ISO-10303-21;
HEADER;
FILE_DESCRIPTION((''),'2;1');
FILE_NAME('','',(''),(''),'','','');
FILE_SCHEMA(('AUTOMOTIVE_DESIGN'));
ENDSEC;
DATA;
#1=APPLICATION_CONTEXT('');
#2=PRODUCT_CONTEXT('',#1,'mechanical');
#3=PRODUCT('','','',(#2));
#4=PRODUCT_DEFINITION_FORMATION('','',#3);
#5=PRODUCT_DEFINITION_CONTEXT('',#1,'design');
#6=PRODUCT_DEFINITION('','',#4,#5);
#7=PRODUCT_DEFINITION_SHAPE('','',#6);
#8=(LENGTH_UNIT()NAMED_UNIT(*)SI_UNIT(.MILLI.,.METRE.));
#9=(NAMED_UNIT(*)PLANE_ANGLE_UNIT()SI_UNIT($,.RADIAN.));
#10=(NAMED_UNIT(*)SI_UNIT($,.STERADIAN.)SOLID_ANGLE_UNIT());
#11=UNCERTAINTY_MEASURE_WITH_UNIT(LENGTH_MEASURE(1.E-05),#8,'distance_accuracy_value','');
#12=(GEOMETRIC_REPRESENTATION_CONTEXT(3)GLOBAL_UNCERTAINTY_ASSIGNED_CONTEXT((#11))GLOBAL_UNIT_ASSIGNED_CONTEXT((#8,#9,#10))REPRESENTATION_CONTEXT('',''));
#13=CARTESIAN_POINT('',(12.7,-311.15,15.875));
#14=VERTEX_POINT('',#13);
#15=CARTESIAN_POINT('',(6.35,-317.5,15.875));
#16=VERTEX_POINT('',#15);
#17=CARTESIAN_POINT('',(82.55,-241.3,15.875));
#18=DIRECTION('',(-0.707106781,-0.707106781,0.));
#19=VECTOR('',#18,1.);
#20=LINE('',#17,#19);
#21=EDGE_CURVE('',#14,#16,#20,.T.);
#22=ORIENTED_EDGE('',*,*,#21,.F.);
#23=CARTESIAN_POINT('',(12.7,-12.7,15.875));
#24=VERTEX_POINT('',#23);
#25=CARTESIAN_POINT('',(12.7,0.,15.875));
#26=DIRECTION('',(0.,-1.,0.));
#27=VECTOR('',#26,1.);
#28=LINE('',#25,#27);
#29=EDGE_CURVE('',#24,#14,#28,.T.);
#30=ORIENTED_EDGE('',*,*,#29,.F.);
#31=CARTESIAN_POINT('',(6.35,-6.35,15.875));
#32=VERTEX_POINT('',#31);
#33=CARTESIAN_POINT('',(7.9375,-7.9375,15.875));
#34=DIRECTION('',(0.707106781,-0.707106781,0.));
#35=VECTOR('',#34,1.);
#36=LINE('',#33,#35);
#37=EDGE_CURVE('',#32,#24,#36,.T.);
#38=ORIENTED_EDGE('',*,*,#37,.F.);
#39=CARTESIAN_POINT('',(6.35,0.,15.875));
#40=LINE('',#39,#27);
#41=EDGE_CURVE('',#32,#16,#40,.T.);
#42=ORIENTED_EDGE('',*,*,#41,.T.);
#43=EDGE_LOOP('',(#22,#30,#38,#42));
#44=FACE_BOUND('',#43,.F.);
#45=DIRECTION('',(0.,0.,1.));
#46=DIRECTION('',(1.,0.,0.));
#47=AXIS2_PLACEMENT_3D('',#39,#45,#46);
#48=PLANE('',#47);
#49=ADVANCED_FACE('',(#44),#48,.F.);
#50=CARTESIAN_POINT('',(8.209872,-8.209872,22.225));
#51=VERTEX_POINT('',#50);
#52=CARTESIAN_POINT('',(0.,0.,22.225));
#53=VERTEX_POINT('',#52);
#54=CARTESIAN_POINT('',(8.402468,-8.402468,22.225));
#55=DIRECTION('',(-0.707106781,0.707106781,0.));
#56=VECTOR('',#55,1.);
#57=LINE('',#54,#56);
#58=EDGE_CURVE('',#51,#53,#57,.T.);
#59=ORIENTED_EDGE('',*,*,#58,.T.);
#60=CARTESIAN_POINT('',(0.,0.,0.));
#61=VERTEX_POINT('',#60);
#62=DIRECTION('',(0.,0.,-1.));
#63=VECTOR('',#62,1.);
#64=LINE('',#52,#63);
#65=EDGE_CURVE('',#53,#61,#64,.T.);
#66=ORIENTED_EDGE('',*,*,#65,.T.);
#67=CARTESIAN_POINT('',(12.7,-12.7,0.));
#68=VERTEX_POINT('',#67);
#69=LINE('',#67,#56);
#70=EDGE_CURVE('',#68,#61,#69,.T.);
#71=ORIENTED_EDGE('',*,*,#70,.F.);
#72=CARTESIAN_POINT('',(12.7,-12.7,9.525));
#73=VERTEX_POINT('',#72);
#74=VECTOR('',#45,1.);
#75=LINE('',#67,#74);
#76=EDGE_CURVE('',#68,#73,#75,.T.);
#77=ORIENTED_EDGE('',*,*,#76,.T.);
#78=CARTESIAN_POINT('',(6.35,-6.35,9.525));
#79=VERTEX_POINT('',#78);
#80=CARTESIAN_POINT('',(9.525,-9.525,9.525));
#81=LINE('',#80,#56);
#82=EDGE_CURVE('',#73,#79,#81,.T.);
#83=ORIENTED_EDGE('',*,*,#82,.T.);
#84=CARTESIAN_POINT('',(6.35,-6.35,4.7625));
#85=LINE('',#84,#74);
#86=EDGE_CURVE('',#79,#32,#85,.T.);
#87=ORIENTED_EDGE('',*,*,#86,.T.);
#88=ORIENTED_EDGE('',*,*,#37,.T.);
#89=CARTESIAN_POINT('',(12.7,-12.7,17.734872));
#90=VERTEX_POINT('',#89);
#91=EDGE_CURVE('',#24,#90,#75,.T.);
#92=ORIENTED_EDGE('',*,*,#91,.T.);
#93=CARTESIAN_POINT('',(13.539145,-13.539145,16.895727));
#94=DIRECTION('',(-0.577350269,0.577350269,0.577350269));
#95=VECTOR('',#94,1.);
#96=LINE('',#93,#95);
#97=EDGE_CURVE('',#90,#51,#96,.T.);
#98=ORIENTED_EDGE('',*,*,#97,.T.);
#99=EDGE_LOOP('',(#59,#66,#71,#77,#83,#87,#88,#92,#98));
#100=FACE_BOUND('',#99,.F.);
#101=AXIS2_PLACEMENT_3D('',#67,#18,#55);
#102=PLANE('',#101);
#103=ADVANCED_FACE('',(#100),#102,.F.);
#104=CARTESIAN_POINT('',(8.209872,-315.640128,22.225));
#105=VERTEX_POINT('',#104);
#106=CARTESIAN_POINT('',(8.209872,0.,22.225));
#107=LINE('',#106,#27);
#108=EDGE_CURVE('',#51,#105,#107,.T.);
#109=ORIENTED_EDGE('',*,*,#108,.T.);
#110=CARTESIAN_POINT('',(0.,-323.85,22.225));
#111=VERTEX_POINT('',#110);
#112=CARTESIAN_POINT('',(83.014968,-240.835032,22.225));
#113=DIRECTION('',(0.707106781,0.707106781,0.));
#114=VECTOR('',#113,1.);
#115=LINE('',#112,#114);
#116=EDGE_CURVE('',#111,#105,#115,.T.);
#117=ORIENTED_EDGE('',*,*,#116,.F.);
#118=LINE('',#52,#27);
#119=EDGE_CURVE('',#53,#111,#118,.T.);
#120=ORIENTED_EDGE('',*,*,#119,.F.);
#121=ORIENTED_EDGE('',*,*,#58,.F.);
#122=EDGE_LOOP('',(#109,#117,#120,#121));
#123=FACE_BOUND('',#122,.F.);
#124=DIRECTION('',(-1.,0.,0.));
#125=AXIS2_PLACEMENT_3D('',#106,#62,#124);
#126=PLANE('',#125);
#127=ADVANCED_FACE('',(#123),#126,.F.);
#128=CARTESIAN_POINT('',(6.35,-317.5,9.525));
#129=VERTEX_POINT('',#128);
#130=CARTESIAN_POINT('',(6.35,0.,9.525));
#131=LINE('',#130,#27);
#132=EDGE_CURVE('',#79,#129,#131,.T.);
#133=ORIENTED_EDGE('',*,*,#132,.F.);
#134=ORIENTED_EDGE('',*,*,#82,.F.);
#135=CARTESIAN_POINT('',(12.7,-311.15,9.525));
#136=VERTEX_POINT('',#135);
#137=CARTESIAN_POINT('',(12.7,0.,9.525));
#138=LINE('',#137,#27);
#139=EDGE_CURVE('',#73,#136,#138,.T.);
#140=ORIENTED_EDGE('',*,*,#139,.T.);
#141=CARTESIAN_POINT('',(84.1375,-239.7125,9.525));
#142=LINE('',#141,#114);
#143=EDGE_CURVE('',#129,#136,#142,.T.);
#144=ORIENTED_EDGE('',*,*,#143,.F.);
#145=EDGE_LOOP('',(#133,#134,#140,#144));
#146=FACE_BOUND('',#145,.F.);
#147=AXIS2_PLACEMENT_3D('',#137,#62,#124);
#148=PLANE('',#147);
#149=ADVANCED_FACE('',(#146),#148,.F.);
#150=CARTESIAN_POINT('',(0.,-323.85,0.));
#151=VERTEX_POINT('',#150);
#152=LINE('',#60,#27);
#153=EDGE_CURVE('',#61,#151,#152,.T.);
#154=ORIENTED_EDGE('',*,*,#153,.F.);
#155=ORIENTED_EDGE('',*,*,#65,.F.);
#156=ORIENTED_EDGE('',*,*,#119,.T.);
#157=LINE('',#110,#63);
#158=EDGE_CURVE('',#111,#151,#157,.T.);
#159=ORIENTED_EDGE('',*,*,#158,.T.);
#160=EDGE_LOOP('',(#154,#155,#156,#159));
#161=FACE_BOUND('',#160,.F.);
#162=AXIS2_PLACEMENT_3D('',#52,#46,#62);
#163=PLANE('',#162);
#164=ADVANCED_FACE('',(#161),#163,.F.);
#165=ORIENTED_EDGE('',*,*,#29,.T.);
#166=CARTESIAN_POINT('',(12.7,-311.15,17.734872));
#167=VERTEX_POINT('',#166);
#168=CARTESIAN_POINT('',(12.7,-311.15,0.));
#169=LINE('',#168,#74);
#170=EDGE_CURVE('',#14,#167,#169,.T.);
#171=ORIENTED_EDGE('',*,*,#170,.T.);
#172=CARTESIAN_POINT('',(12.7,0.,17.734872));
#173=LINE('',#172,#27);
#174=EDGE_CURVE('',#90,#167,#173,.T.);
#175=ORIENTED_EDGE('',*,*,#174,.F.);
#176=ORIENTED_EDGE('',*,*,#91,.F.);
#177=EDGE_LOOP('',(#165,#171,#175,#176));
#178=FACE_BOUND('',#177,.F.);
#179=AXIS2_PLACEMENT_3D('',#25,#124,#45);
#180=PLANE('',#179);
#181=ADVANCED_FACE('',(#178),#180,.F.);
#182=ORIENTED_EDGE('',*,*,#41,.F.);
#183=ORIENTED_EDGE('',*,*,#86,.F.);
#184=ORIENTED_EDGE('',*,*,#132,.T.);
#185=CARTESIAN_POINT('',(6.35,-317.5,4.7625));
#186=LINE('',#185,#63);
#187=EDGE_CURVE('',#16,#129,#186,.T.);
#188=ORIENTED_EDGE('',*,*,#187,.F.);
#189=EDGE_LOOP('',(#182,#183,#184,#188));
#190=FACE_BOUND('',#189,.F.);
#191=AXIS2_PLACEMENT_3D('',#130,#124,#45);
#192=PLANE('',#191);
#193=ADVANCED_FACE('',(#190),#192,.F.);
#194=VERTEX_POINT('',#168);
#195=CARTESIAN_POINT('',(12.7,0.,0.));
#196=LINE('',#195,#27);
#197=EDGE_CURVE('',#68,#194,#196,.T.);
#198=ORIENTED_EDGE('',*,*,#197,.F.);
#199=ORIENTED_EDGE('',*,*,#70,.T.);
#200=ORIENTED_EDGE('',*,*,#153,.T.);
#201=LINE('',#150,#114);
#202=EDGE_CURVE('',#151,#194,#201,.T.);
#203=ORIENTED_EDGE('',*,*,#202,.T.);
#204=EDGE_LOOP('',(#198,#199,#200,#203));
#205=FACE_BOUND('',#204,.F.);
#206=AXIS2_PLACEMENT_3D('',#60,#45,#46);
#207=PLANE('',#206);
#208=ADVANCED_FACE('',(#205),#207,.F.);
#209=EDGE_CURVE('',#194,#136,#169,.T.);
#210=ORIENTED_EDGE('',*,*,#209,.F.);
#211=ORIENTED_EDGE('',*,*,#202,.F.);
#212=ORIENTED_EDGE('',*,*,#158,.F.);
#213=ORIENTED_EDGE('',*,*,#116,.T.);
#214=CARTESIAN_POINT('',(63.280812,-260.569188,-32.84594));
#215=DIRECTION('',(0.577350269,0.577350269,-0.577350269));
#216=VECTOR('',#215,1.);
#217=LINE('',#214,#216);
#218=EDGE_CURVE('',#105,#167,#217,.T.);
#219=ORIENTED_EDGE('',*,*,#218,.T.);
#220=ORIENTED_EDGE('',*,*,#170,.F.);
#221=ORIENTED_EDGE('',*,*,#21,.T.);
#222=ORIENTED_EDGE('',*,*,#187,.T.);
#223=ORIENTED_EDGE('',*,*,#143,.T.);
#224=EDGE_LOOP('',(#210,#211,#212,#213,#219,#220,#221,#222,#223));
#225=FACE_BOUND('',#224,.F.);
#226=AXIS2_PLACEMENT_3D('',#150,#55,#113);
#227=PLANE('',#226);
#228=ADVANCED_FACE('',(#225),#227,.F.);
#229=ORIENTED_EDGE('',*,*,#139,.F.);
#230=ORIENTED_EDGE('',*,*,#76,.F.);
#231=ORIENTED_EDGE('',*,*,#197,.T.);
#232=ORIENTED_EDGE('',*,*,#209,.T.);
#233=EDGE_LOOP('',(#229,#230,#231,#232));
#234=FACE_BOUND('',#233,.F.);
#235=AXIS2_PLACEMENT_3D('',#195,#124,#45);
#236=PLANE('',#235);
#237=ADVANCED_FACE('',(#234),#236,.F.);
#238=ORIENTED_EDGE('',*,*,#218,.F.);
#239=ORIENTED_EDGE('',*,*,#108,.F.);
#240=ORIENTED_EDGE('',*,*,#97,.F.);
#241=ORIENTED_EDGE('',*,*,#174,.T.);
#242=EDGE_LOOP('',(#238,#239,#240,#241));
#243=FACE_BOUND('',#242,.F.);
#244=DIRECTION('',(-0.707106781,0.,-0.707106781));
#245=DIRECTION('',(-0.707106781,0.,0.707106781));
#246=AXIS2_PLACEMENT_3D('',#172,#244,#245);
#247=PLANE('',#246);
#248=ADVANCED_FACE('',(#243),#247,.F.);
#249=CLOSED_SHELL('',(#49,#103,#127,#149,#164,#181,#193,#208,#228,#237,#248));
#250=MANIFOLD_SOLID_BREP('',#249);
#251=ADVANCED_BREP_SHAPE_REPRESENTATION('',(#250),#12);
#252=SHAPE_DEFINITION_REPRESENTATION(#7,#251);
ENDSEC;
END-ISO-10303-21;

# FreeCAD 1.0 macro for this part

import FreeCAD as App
import Part
import Sketcher
Q = App.Units.Quantity

doc = App.newDocument("Part")
body = doc.addObject("PartDesign::Body", "Body")

sketch1 = doc.addObject("Sketcher::SketchObject", "Sketch")
body.addObject(sketch1)
sketch1.AttachmentSupport = (doc.XZ_Plane, [""])
sketch1.MapMode = "FlatFace"
sketch1.addGeometry([
    Part.LineSegment(App.Vector(0, 22.2, 0), App.Vector(0, 0, 0)),
    Part.LineSegment(App.Vector(0, 0, 0), App.Vector(12.7, 0, 0)),
    Part.LineSegment(App.Vector(12.7, 0, 0), App.Vector(12.7, 9.5, 0)),
    Part.LineSegment(App.Vector(12.7, 9.5, 0), App.Vector(6.3, 9.5, 0)),
    Part.LineSegment(App.Vector(6.3, 9.5, 0), App.Vector(6.3, 15.9, 0)),
    Part.LineSegment(App.Vector(6.3, 15.9, 0), App.Vector(12.7, 15.9, 0)),
    Part.LineSegment(App.Vector(12.7, 15.9, 0), App.Vector(12.7, 17.7, 0)),
    Part.LineSegment(App.Vector(12.7, 17.7, 0), App.Vector(8.2, 22.2, 0)),
    Part.LineSegment(App.Vector(8.2, 22.2, 0), App.Vector(0, 22.2, 0)),
], False)
sketch1.addConstraint([
    Sketcher.Constraint("Coincident", 0, 2, 1, 1),
    Sketcher.Constraint("Coincident", 1, 2, 2, 1),
    Sketcher.Constraint("Coincident", 2, 2, 3, 1),
    Sketcher.Constraint("Coincident", 3, 2, 4, 1),
    Sketcher.Constraint("Coincident", 4, 2, 5, 1),
    Sketcher.Constraint("Coincident", 5, 2, 6, 1),
    Sketcher.Constraint("Coincident", 6, 2, 7, 1),
    Sketcher.Constraint("Coincident", 7, 2, 8, 1),
    Sketcher.Constraint("Coincident", 8, 2, 0, 1),
    Sketcher.Constraint("Vertical", 0),
    Sketcher.Constraint("Horizontal", 1),
    Sketcher.Constraint("Vertical", 2),
    Sketcher.Constraint("Horizontal", 3),
    Sketcher.Constraint("Vertical", 4),
    Sketcher.Constraint("Horizontal", 5),
    Sketcher.Constraint("Vertical", 6),
    Sketcher.Constraint("Horizontal", 8),
    Sketcher.Constraint("Coincident", 0, 2, -1, 1),
    Sketcher.Constraint("Vertical", 2, 2, 5, 2),
    Sketcher.Constraint("Equal", 5, 4),
    Sketcher.Constraint("DistanceX", 1, 1, 1, 2, Q("0.5 in")),
    Sketcher.Constraint("Angle", 7, Q("135 deg")),
    Sketcher.Constraint("DistanceX", 3, 2, 3, 1, Q("0.25 in")),
    Sketcher.Constraint("DistanceY", 3, 2, 7, 2, Q("0.5 in")),
    Sketcher.Constraint("Distance", 7, Q("0.25 in")),
    Sketcher.Constraint("DistanceY", 0, 2, 0, 1, Q("0.875 in")),
])
pad1 = doc.addObject("PartDesign::Pad", "Pad")
body.addObject(pad1)
pad1.Profile = sketch1
pad1.Length = Q("12.75 in")

sketch2 = doc.addObject("Sketcher::SketchObject", "Sketch001")
body.addObject(sketch2)
sketch2.AttachmentSupport = (doc.XY_Plane, [""])
sketch2.MapMode = "FlatFace"
sketch2.addGeometry([
    Part.LineSegment(App.Vector(13, -324, 0), App.Vector(0, -324, 0)),
    Part.LineSegment(App.Vector(0, -324, 0), App.Vector(13, -311, 0)),
    Part.LineSegment(App.Vector(13, -311, 0), App.Vector(13, -324, 0)),
    Part.LineSegment(App.Vector(13, -13, 0), App.Vector(0, 0, 0)),
    Part.LineSegment(App.Vector(0, 0, 0), App.Vector(13, 0, 0)),
    Part.LineSegment(App.Vector(13, 0, 0), App.Vector(13, -13, 0)),
], False)
sketch2.addConstraint([
    Sketcher.Constraint("Coincident", 0, 2, 1, 1),
    Sketcher.Constraint("Coincident", 1, 2, 2, 1),
    Sketcher.Constraint("Coincident", 2, 2, 0, 1),
    Sketcher.Constraint("Coincident", 3, 2, 4, 1),
    Sketcher.Constraint("Coincident", 4, 2, 5, 1),
    Sketcher.Constraint("Coincident", 5, 2, 3, 1),
    Sketcher.Constraint("Horizontal", 0),
    Sketcher.Constraint("Vertical", 2),
    Sketcher.Constraint("Horizontal", 4),
    Sketcher.Constraint("Vertical", 5),
    Sketcher.Constraint("Coincident", 3, 2, -1, 1),
    Sketcher.Constraint("PointOnObject", 0, 2, -2),
    Sketcher.Constraint("Perpendicular", 1, 3),
    Sketcher.Constraint("Vertical", 2, 2, 4, 2),
    Sketcher.Constraint("Equal", 4, 2),
    Sketcher.Constraint("DistanceX", 0, 2, 0, 1, Q("0.5 in")),
    Sketcher.Constraint("DistanceY", 0, 2, -1, 1, Q("12.75 in")),
])
pocket1 = doc.addObject("PartDesign::Pocket", "Pocket")
body.addObject(pocket1)
pocket1.Profile = sketch2
pocket1.Type = "ThroughAll"
pocket1.Reversed = True

doc.recompute()
